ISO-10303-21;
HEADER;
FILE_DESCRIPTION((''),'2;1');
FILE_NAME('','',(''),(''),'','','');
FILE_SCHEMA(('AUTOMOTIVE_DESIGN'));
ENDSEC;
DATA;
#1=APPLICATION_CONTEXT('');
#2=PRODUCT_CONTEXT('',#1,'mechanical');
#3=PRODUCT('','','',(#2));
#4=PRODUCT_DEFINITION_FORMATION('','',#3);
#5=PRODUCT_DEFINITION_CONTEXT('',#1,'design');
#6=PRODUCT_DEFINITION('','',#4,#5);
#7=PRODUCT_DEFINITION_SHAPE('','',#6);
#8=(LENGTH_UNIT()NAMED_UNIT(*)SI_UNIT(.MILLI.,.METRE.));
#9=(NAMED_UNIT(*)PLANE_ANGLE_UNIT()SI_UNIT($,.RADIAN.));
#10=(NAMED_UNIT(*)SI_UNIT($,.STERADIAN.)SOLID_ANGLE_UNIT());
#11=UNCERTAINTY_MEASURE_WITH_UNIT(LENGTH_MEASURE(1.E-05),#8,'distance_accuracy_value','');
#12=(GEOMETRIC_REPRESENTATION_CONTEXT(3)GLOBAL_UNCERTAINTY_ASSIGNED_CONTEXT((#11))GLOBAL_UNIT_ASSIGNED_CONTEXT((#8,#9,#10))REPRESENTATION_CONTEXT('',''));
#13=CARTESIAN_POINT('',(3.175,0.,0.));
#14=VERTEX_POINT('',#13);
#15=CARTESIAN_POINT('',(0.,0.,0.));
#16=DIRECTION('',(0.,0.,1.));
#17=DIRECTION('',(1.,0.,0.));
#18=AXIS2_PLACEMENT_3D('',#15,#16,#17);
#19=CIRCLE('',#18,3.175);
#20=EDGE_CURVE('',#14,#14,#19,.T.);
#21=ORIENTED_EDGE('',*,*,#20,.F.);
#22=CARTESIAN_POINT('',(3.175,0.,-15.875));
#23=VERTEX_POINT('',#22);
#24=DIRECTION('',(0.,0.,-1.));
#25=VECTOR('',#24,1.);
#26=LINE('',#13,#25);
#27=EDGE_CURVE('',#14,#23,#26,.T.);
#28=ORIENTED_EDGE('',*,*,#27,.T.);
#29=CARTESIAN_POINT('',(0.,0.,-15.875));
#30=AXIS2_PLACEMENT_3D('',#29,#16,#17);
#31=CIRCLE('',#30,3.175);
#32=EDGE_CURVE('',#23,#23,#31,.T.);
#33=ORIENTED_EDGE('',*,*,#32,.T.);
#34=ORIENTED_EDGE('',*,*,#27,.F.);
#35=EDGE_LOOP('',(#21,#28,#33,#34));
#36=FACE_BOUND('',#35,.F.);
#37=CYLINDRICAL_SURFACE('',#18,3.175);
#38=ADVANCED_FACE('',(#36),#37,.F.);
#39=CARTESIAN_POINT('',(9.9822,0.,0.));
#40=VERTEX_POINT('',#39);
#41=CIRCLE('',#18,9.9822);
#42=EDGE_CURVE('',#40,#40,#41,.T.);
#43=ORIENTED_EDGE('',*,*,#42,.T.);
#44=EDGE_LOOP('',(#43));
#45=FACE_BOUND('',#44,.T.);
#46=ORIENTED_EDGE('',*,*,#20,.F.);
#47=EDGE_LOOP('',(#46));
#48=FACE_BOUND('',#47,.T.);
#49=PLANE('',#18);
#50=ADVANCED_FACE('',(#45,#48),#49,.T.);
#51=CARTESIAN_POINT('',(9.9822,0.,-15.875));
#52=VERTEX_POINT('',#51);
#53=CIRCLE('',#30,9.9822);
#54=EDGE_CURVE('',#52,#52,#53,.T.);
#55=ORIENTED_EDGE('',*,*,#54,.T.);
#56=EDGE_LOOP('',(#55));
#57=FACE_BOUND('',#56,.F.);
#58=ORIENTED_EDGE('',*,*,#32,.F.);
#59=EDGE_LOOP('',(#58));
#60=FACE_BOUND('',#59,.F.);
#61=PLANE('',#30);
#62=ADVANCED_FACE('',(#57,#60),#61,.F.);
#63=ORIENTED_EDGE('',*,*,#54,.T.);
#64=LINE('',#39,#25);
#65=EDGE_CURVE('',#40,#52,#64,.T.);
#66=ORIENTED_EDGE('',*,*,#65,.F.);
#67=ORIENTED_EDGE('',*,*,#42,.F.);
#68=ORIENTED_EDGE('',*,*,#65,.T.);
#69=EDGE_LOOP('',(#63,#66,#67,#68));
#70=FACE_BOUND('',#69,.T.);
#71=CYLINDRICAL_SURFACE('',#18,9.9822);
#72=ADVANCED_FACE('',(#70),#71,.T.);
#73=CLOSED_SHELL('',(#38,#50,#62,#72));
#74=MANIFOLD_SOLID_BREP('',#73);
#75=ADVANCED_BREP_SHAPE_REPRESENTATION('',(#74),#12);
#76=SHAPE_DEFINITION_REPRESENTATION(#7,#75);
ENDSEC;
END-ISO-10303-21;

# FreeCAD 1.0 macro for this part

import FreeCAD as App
import Part
import Sketcher
Q = App.Units.Quantity

doc = App.newDocument("Part")
body = doc.addObject("PartDesign::Body", "Body")

# Sketch on XY plane
sketch1 = body.newObject("Sketcher::SketchObject", "Sketch")
sketch1.AttachmentSupport = (doc.getObject("XY_Plane"), [""])
sketch1.MapMode = "FlatFace"
sketch1.addGeometry(Part.Circle(App.Vector(0, 0, 0), App.Vector(0, 0, 1), 10), False)
sketch1.addConstraint([
    Sketcher.Constraint("Coincident", 0, 3, -1, 1),
    Sketcher.Constraint("Diameter", 0, Q("0.786 in")),
])
pad1 = body.newObject("PartDesign::Pad", "Pad")
pad1.Profile = sketch1
pad1.Length = Q("0.625 in")
pad1.Reversed = True

# Sketch on XY plane
sketch2 = body.newObject("Sketcher::SketchObject", "Sketch001")
sketch2.AttachmentSupport = (doc.getObject("XY_Plane"), [""])
sketch2.MapMode = "FlatFace"
sketch2.addGeometry(Part.Circle(App.Vector(0, 0, 0), App.Vector(0, 0, 1), 3.2), False)
sketch2.addConstraint([
    Sketcher.Constraint("Coincident", 0, 3, -1, 1),
    Sketcher.Constraint("Diameter", 0, Q("0.25 in")),
])
pocket1 = body.newObject("PartDesign::Pocket", "Pocket")
pocket1.Profile = sketch2
pocket1.Type = "ThroughAll"

doc.recompute()
